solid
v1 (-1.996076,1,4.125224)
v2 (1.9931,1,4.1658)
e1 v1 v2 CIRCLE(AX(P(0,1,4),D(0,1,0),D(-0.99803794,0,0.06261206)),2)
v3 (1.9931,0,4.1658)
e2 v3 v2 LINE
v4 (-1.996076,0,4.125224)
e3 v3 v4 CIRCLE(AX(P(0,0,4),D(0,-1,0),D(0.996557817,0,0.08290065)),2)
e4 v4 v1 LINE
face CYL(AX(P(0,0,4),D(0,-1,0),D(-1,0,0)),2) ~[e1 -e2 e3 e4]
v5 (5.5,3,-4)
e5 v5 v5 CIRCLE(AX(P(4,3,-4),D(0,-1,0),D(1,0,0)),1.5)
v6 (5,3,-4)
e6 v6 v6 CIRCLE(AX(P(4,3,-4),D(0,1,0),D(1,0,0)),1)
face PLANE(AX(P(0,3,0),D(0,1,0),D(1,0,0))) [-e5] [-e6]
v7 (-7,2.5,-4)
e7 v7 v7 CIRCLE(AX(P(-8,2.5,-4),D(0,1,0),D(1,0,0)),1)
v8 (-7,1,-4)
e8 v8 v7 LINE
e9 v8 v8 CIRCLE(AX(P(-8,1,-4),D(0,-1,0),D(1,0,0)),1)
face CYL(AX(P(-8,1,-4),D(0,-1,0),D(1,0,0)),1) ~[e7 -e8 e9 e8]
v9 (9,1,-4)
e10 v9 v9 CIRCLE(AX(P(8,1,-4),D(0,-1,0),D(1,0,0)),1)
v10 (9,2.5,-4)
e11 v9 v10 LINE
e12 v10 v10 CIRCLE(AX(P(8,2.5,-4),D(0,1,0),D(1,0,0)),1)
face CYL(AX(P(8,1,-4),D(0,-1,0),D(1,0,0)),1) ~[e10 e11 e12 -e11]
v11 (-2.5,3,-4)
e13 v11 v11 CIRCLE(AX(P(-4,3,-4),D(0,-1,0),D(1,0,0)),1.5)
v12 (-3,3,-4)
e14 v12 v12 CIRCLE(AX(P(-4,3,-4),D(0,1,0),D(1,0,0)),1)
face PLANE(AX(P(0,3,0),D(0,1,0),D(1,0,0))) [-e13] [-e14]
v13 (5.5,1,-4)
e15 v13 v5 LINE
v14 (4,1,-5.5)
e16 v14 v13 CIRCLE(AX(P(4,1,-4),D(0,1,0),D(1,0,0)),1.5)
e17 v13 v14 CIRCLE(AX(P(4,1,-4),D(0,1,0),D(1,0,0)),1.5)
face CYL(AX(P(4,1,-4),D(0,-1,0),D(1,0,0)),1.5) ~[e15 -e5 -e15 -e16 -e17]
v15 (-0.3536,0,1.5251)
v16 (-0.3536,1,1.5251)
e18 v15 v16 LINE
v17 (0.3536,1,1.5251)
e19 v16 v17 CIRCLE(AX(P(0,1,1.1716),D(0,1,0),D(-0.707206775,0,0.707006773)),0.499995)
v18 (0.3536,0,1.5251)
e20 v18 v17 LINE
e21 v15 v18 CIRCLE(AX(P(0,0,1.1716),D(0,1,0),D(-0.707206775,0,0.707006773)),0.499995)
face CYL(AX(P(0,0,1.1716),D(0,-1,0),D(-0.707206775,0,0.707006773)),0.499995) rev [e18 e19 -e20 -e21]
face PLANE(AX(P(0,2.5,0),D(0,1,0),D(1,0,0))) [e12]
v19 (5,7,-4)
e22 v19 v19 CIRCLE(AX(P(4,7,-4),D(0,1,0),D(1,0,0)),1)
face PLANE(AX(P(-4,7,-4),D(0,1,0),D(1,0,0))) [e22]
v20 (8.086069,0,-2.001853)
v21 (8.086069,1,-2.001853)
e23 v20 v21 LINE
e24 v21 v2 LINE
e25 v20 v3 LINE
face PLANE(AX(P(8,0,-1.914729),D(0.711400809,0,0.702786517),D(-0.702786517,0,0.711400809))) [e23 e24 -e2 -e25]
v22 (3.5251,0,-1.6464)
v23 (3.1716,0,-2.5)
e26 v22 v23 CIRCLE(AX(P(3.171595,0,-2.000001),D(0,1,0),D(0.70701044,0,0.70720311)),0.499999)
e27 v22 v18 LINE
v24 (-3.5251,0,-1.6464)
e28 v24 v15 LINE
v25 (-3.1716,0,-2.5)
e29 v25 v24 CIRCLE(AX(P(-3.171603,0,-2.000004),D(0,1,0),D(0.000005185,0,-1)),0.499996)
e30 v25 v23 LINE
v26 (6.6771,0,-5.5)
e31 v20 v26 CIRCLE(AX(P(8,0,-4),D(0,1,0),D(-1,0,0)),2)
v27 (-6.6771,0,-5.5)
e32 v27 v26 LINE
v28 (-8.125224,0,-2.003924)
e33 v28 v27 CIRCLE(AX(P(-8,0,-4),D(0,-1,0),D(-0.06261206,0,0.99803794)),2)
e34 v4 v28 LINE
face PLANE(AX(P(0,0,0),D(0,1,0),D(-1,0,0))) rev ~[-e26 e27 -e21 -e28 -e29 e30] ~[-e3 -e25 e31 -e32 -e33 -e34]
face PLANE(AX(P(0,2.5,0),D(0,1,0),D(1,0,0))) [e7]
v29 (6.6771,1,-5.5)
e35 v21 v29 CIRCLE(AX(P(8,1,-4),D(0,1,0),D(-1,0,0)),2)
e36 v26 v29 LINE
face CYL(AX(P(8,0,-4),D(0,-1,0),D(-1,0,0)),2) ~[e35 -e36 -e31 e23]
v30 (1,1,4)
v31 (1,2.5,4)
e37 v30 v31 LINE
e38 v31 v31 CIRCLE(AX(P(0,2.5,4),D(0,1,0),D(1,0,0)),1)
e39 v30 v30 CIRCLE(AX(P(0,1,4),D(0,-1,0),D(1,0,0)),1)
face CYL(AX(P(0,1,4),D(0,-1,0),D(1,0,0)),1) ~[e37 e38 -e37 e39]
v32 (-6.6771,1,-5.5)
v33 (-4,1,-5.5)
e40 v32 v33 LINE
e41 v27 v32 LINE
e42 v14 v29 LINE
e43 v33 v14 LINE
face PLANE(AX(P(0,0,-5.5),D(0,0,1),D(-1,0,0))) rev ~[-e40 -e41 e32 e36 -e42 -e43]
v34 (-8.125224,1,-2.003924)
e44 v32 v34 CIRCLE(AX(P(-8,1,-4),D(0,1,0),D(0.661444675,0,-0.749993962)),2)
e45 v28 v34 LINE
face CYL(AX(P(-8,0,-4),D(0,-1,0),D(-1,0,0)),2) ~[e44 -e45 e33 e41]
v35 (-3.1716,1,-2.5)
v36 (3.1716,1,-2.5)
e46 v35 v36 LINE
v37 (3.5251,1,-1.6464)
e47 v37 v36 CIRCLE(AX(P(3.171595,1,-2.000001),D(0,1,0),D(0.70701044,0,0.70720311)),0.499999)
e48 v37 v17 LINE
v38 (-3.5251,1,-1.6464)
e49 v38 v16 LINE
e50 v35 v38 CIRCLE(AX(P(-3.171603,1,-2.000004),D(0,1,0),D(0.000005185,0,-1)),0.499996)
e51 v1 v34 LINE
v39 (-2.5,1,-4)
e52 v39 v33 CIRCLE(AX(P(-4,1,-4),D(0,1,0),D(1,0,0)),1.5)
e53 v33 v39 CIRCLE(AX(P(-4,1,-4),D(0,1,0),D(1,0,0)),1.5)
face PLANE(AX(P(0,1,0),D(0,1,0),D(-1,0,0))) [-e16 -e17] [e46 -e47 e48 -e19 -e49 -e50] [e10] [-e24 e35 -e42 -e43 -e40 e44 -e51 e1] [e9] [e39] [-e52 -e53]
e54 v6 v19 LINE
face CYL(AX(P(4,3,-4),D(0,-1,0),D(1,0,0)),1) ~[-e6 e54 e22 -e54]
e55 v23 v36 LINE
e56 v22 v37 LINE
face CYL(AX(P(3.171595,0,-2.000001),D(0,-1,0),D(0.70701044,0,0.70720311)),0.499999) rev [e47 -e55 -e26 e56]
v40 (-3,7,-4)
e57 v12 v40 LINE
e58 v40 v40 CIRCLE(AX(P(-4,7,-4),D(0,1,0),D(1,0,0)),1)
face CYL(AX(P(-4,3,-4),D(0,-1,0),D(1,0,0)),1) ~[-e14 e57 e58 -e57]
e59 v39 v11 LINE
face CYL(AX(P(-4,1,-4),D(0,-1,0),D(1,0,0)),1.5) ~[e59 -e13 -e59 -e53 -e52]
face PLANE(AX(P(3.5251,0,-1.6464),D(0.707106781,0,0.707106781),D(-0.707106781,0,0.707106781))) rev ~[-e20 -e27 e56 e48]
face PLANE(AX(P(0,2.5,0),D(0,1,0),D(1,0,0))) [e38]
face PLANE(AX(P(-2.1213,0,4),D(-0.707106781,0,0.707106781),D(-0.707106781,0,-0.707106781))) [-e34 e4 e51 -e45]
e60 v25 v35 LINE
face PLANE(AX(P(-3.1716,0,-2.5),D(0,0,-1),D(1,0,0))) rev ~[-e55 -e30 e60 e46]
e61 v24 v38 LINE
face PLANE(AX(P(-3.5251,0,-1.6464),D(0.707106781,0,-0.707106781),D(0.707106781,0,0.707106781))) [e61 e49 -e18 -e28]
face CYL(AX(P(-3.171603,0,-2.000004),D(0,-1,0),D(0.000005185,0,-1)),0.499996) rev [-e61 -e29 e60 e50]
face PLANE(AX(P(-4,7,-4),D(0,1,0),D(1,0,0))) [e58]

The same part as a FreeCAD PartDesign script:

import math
import FreeCAD as App
import Part
import Sketcher
Q = App.Units.Quantity

doc = App.newDocument("Part")
body = doc.addObject("PartDesign::Body", "Body")

sketch1 = body.newObject("Sketcher::SketchObject", "Sketch")
sketch1.AttachmentSupport = (doc.getObject("XZ_Plane"), [""])
sketch1.MapMode = "FlatFace"
sketch1.addGeometry([
    Part.ArcOfCircle(Part.Circle(App.Vector(8, -4, 0), App.Vector(0, 0, 1), 2), math.radians(-131.410145), math.radians(87.533536)),
    Part.LineSegment(App.Vector(6.6771, -5.5, 0), App.Vector(-6.6771, -5.5, 0)),
    Part.ArcOfCircle(Part.Circle(App.Vector(-8, -4, 0), App.Vector(0, 0, 1), 2), math.radians(93.589755), math.radians(311.410145)),
    Part.LineSegment(App.Vector(-8.125224, -2.003924, 0), App.Vector(-1.996076, 4.125224, 0)),
    Part.ArcOfCircle(Part.Circle(App.Vector(0, 4, 0), App.Vector(0, 0, 1), 2), math.radians(4.755315), math.radians(176.410245)),
    Part.LineSegment(App.Vector(1.9931, 4.1658, 0), App.Vector(8.086069, -2.001853, 0)),
    Part.Circle(App.Vector(8, -4, 0), App.Vector(0, 0, 1), 1),
    Part.LineSegment(App.Vector(3.5251, -1.6464, 0), App.Vector(0.3536, 1.5251, 0)),
    Part.ArcOfCircle(Part.Circle(App.Vector(0, 1.1716, 0), App.Vector(0, 0, 1), 0.499995), math.radians(44.991897), math.radians(135.008103)),
    Part.LineSegment(App.Vector(-0.3536, 1.5251, 0), App.Vector(-3.5251, -1.6464, 0)),
    Part.ArcOfCircle(Part.Circle(App.Vector(-3.1716, -2, 0), App.Vector(0, 0, 1), 0.5), math.radians(134.991897), math.radians(270)),
    Part.LineSegment(App.Vector(-3.1716, -2.5, 0), App.Vector(3.1716, -2.5, 0)),
    Part.ArcOfCircle(Part.Circle(App.Vector(3.1716, -2, 0), App.Vector(0, 0, 1), 0.499995), math.radians(-90), math.radians(45.008103)),
    Part.Circle(App.Vector(0, 4, 0), App.Vector(0, 0, 1), 1),
    Part.Circle(App.Vector(-8, -4, 0), App.Vector(0, 0, 1), 1),
], False)
sketch1.addConstraint([
    Sketcher.Constraint("Coincident", 0, 1, 1, 1),
    Sketcher.Constraint("Coincident", 1, 2, 2, 2),
    Sketcher.Constraint("Coincident", 2, 1, 3, 1),
    Sketcher.Constraint("Coincident", 3, 2, 4, 2),
    Sketcher.Constraint("Coincident", 4, 1, 5, 1),
    Sketcher.Constraint("Coincident", 5, 2, 0, 2),
    Sketcher.Constraint("Tangent", 7, 2, 8, 1),
    Sketcher.Constraint("Tangent", 8, 2, 9, 1),
    Sketcher.Constraint("Tangent", 9, 2, 10, 1),
    Sketcher.Constraint("Tangent", 10, 2, 11, 1),
    Sketcher.Constraint("Tangent", 11, 2, 12, 1),
    Sketcher.Constraint("Tangent", 12, 2, 7, 1),
    Sketcher.Constraint("Horizontal", 1),
    Sketcher.Constraint("Horizontal", 11),
    Sketcher.Constraint("Coincident", 6, 3, 0, 3),
    Sketcher.Constraint("Coincident", 13, 3, 4, 3),
    Sketcher.Constraint("Coincident", 14, 3, 2, 3),
    Sketcher.Constraint("Equal", 0, 2),
    Sketcher.Constraint("Equal", 2, 4),
    Sketcher.Constraint("Equal", 8, 10),
    Sketcher.Constraint("Equal", 10, 12),
    Sketcher.Constraint("Equal", 6, 13),
    Sketcher.Constraint("Equal", 13, 14),
    Sketcher.Constraint("Symmetric", 0, 3, 2, 3, -2),
    Sketcher.Constraint("Symmetric", 7, 2, 8, 2, -2),
    Sketcher.Constraint("PointOnObject", 4, 3, -2),
    Sketcher.Constraint("Perpendicular", 3, 7),
    Sketcher.Constraint("Perpendicular", 7, 9),
    Sketcher.Constraint("Diameter", 6, 2.0),
    Sketcher.Constraint("Radius", 0, 2.0),
    Sketcher.Constraint("Radius", 8, 0.5),
    Sketcher.Constraint("DistanceX", -1, 1, 0, 3, 8.0),
    Sketcher.Constraint("DistanceY", 0, 3, -1, 1, 4.0),
    Sketcher.Constraint("DistanceY", -1, 1, 4, 3, 4.0),
    Sketcher.Constraint("DistanceY", 10, 3, -1, 1, 2.0),
    Sketcher.Constraint("DistanceY", 0, 1, 0, 3, 1.5),
    Sketcher.Constraint("Angle", 5, Q("-45.349 deg")),
    Sketcher.Constraint("Distance", 3, 8.668),
    Sketcher.Constraint("DistanceX", 11, 1, 11, 2, 6.3432),
    Sketcher.Constraint("DistanceX", -1, 1, 4, 1, 1.993),
])
pad1 = body.newObject("PartDesign::Pad", "Pad")
pad1.Profile = sketch1
pad1.Length = 1
pad1.Reversed = True

sketch2 = body.newObject("Sketcher::SketchObject", "Sketch001")
sketch2.AttachmentSupport = (doc.getObject("XZ_Plane"), [""])
sketch2.MapMode = "FlatFace"
sketch2.AttachmentOffset = App.Placement(App.Vector(0, 0, -1), App.Rotation())
sketch2.addGeometry([
    Part.Circle(App.Vector(-8, -4, 0), App.Vector(0, 0, 1), 1),
    Part.Circle(App.Vector(8, -4, 0), App.Vector(0, 0, 1), 1),
], False)
sketch2.addConstraint([
    Sketcher.Constraint("Equal", 0, 1),
    Sketcher.Constraint("Symmetric", 0, 3, 1, 3, -2),
    Sketcher.Constraint("Diameter", 0, 2.0),
    Sketcher.Constraint("DistanceX", 0, 3, -1, 1, 8.0),
    Sketcher.Constraint("DistanceY", 0, 3, -1, 1, 4.0),
])
pad2 = body.newObject("PartDesign::Pad", "Pad001")
pad2.Profile = sketch2
pad2.Type = "TwoLengths"
pad2.Length = 1.5
pad2.Length2 = 1
pad2.Reversed = True

sketch3 = body.newObject("Sketcher::SketchObject", "Sketch002")
sketch3.AttachmentSupport = (doc.getObject("XZ_Plane"), [""])
sketch3.MapMode = "FlatFace"
sketch3.AttachmentOffset = App.Placement(App.Vector(0, 0, -1), App.Rotation())
sketch3.addGeometry(Part.Circle(App.Vector(0, 4, 0), App.Vector(0, 0, 1), 1), False)
sketch3.addConstraint([
    Sketcher.Constraint("PointOnObject", 0, 3, -2),
    Sketcher.Constraint("Diameter", 0, 2.0),
    Sketcher.Constraint("DistanceY", -1, 1, 0, 3, 4.0),
])
pad3 = body.newObject("PartDesign::Pad", "Pad002")
pad3.Profile = sketch3
pad3.Type = "TwoLengths"
pad3.Length = 1.5
pad3.Length2 = 1
pad3.Reversed = True

sketch4 = body.newObject("Sketcher::SketchObject", "Sketch003")
sketch4.AttachmentSupport = (doc.getObject("XZ_Plane"), [""])
sketch4.MapMode = "FlatFace"
sketch4.AttachmentOffset = App.Placement(App.Vector(0, 0, -1), App.Rotation())
sketch4.addGeometry([
    Part.Circle(App.Vector(4, -4, 0), App.Vector(0, 0, 1), 1.5),
    Part.Circle(App.Vector(-4, -4, 0), App.Vector(0, 0, 1), 1.5),
], False)
sketch4.addConstraint([
    Sketcher.Constraint("Equal", 0, 1),
    Sketcher.Constraint("Symmetric", 0, 3, 1, 3, -2),
    Sketcher.Constraint("Diameter", 0, 3.0),
    Sketcher.Constraint("DistanceX", -1, 1, 0, 3, 4.0),
    Sketcher.Constraint("DistanceY", 0, 3, -1, 1, 4.0),
])
pad4 = body.newObject("PartDesign::Pad", "Pad003")
pad4.Profile = sketch4
pad4.Length = 2
pad4.Reversed = True

sketch5 = body.newObject("Sketcher::SketchObject", "Sketch004")
sketch5.AttachmentSupport = (doc.getObject("XZ_Plane"), [""])
sketch5.MapMode = "FlatFace"
sketch5.AttachmentOffset = App.Placement(App.Vector(0, 0, -3), App.Rotation())
sketch5.addGeometry([
    Part.Circle(App.Vector(-4, -4, 0), App.Vector(0, 0, 1), 1),
    Part.Circle(App.Vector(4, -4, 0), App.Vector(0, 0, 1), 1),
], False)
sketch5.addConstraint([
    Sketcher.Constraint("Equal", 0, 1),
    Sketcher.Constraint("Symmetric", 0, 3, 1, 3, -2),
    Sketcher.Constraint("Diameter", 0, 2.0),
    Sketcher.Constraint("DistanceX", 0, 3, -1, 1, 4.0),
    Sketcher.Constraint("DistanceY", 0, 3, -1, 1, 4.0),
])
pad5 = body.newObject("PartDesign::Pad", "Pad004")
pad5.Profile = sketch5
pad5.Length = 4
pad5.Reversed = True

doc.recompute()
